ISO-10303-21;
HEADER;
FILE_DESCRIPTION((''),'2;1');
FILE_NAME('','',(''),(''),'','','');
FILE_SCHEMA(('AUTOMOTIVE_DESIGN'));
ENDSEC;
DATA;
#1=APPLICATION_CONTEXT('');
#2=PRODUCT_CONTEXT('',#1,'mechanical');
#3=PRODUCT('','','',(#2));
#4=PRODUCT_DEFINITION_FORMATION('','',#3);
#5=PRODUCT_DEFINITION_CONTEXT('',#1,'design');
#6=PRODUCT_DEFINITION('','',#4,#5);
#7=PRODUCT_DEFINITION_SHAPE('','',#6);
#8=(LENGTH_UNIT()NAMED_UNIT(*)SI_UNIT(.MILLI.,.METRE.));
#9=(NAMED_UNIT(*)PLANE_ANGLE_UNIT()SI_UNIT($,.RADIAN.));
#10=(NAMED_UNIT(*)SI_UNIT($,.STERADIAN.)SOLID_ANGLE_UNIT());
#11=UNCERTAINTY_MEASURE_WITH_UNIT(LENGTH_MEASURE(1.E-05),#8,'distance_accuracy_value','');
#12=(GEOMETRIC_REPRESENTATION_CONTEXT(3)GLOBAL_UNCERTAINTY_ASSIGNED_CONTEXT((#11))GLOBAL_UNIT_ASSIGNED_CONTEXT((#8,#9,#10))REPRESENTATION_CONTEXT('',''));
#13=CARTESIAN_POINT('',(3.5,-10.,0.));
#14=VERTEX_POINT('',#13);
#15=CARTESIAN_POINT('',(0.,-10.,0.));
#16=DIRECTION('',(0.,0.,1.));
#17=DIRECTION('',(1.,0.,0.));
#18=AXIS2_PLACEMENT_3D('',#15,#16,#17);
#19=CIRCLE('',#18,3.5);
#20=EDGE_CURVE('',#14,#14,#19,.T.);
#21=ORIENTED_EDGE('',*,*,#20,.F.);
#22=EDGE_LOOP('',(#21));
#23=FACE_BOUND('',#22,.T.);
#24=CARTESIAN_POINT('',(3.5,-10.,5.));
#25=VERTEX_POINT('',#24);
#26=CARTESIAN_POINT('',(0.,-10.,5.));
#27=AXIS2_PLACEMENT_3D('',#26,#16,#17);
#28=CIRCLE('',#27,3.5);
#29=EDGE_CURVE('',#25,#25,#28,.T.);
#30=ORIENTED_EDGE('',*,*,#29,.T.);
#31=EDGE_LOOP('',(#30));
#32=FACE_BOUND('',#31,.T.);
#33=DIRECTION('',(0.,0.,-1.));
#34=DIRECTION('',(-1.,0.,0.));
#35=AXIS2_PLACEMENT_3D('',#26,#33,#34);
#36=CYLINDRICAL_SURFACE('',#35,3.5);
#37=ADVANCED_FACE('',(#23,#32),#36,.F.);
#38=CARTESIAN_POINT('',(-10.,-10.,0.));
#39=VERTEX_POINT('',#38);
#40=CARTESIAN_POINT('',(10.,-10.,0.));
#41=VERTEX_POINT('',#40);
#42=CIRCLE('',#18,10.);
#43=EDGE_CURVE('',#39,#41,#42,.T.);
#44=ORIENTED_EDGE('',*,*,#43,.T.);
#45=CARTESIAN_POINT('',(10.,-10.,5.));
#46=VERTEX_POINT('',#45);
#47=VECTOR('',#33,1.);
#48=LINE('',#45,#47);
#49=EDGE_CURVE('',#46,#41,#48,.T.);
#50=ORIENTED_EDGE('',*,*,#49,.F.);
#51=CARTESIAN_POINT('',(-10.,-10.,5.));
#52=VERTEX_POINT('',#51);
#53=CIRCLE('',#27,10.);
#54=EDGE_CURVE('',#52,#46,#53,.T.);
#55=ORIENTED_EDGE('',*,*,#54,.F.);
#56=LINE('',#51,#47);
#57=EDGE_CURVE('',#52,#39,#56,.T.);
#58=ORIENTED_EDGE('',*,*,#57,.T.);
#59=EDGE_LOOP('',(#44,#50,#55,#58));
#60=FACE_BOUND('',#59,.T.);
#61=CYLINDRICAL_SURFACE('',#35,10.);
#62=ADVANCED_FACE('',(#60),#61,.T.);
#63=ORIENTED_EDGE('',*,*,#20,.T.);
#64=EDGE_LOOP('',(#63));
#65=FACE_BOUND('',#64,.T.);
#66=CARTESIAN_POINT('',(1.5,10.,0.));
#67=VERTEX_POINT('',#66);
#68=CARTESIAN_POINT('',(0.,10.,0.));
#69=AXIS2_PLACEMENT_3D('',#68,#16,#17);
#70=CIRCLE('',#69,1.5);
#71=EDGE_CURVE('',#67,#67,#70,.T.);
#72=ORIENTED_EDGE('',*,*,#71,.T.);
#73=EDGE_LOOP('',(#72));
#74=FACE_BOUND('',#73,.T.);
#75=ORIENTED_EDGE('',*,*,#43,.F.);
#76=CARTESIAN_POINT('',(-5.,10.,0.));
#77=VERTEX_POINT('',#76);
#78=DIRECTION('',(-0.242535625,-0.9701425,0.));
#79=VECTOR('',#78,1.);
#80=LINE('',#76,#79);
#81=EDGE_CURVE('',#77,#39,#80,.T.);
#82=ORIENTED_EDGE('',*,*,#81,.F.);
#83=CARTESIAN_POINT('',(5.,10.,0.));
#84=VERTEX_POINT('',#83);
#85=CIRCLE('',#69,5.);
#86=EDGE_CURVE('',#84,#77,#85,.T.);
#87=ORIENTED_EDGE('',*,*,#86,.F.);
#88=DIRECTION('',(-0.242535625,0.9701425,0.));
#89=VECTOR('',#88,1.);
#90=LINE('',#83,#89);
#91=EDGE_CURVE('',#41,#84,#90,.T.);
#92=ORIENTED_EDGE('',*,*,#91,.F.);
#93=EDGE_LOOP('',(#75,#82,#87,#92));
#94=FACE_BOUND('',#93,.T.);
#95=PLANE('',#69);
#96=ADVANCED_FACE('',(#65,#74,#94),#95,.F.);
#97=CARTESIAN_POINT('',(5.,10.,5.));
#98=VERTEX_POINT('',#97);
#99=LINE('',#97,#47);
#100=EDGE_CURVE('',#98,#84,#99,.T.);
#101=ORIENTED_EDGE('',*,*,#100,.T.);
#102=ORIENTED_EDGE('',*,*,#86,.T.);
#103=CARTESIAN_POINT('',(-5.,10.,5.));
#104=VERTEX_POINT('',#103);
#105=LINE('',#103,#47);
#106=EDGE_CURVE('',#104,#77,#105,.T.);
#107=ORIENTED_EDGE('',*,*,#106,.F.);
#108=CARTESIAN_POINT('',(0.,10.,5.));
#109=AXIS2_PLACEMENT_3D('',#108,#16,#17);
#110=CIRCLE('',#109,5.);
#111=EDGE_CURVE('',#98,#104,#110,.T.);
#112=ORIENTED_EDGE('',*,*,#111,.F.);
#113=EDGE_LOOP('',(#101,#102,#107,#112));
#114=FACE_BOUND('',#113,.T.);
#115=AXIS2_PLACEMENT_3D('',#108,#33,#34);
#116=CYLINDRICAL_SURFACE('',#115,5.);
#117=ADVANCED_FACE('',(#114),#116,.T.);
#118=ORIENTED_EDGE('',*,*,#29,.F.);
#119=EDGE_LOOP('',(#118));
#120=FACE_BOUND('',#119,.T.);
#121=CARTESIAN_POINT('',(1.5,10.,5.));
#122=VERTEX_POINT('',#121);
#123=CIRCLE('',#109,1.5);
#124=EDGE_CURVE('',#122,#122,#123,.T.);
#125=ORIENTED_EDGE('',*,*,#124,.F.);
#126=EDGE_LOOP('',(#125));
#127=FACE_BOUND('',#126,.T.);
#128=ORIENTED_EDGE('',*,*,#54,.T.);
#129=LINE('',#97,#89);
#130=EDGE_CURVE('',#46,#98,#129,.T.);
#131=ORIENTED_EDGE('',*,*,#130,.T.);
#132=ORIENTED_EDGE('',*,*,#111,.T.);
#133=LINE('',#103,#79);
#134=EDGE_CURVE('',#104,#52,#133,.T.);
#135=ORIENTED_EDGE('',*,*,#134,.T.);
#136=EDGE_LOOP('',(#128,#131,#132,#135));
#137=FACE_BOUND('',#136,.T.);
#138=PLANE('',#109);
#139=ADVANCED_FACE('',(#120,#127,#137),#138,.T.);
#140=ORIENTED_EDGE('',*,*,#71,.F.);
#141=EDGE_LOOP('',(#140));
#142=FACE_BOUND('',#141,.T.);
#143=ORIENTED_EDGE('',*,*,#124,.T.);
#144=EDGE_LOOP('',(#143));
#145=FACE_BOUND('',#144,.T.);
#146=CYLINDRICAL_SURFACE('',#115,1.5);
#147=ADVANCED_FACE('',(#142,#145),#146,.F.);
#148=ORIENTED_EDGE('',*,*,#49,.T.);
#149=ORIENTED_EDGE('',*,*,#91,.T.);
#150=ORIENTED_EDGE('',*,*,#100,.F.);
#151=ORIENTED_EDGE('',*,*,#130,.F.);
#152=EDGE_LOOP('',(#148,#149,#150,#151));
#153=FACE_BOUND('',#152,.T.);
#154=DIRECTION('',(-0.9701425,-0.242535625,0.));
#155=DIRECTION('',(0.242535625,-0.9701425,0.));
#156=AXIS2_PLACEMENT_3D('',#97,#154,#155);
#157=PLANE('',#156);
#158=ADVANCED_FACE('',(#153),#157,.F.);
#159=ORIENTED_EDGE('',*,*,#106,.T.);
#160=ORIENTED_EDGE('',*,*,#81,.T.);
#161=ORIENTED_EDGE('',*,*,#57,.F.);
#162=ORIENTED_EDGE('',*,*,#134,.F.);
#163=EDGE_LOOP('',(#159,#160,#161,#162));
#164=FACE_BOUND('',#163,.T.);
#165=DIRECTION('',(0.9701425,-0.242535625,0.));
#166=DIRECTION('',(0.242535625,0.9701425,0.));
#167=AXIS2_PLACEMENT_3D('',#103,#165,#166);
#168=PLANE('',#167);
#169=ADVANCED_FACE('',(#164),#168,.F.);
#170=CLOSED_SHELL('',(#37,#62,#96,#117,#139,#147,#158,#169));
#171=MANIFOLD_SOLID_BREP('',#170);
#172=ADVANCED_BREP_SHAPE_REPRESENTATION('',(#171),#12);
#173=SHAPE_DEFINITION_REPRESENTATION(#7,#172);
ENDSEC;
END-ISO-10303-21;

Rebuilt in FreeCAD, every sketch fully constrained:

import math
import FreeCAD as App
import Part
import Sketcher
from FreeCAD import Vector

doc = App.newDocument("Part")
params = doc.addObject("Spreadsheet::Sheet", "Params")
for row, (alias, value) in enumerate([
    ("sketch1_diameter", "7 mm"),
    ("sketch1_diameter2", "3 mm"),
    ("sketch1_radius", "5 mm"),
    ("sketch1_radius2", "10 mm"),
    ("pad1_length", "5 mm"),
], start=1):
    params.set(f"A{row}", alias)
    params.set(f"B{row}", "=" + value)
    params.setAlias(f"B{row}", alias)

body = doc.addObject("PartDesign::Body", "Body")

# Sketch on XY plane
sketch1 = body.newObject("Sketcher::SketchObject", "Sketch")
sketch1.AttachmentSupport = (doc.getObject("XY_Plane"), [""])
sketch1.MapMode = "FlatFace"
sketch1.addGeometry(Part.LineSegment(Vector(10, -10, 0), Vector(5, 10, 0)), False)
sketch1.addGeometry(Part.ArcOfCircle(Part.Circle(Vector(0, 10, 0), Vector(0, 0, 1), 5), math.radians(0), math.radians(180)), False)
sketch1.addGeometry(Part.LineSegment(Vector(-5, 10, 0), Vector(-10, -10, 0)), False)
sketch1.addGeometry(Part.ArcOfCircle(Part.Circle(Vector(0, -10, 0), Vector(0, 0, 1), 10), math.radians(180), math.radians(360)), False)
sketch1.addGeometry(Part.Circle(Vector(0, -10, 0), Vector(0, 0, 1), 3.5), False)
sketch1.addGeometry(Part.Circle(Vector(0, 10, 0), Vector(0, 0, 1), 1.5), False)
sketch1.addConstraint(Sketcher.Constraint("Coincident", 0, 2, 1, 1))
sketch1.addConstraint(Sketcher.Constraint("Coincident", 1, 2, 2, 1))
sketch1.addConstraint(Sketcher.Constraint("Coincident", 2, 2, 3, 1))
sketch1.addConstraint(Sketcher.Constraint("Coincident", 3, 2, 0, 1))
sketch1.addConstraint(Sketcher.Constraint("Coincident", 4, 3, 3, 3))
sketch1.addConstraint(Sketcher.Constraint("Coincident", 5, 3, 1, 3))
sketch1.addConstraint(Sketcher.Constraint("Symmetric", 1, 3, 3, 3, -1, 1))
sketch1.addConstraint(Sketcher.Constraint("Symmetric", 0, 2, 1, 2, -2))
sketch1.addConstraint(Sketcher.Constraint("Horizontal", 5, 3, 0, 2))
sketch1.addConstraint(Sketcher.Constraint("Horizontal", 4, 3, 2, 2))
sketch1.addConstraint(Sketcher.Constraint("Horizontal", 2, 2, 3, 2))
sketch1.addConstraint(Sketcher.Constraint("Diameter", 4, 7.0))
sketch1.addConstraint(Sketcher.Constraint("Diameter", 5, 3.0))
sketch1.addConstraint(Sketcher.Constraint("Radius", 1, 5.0))
sketch1.addConstraint(Sketcher.Constraint("Radius", 3, 10.0))
sketch1.addConstraint(Sketcher.Constraint("DistanceY", -1, 1, 1, 3, 10.0))
sketch1.setExpression("Constraints[11]", "Params.sketch1_diameter")
sketch1.setExpression("Constraints[12]", "Params.sketch1_diameter2")
sketch1.setExpression("Constraints[13]", "Params.sketch1_radius")
sketch1.setExpression("Constraints[14]", "Params.sketch1_radius2")
pad1 = body.newObject("PartDesign::Pad", "Pad")
pad1.Profile = sketch1
pad1.setExpression("Length", "Params.pad1_length")

doc.recompute()
